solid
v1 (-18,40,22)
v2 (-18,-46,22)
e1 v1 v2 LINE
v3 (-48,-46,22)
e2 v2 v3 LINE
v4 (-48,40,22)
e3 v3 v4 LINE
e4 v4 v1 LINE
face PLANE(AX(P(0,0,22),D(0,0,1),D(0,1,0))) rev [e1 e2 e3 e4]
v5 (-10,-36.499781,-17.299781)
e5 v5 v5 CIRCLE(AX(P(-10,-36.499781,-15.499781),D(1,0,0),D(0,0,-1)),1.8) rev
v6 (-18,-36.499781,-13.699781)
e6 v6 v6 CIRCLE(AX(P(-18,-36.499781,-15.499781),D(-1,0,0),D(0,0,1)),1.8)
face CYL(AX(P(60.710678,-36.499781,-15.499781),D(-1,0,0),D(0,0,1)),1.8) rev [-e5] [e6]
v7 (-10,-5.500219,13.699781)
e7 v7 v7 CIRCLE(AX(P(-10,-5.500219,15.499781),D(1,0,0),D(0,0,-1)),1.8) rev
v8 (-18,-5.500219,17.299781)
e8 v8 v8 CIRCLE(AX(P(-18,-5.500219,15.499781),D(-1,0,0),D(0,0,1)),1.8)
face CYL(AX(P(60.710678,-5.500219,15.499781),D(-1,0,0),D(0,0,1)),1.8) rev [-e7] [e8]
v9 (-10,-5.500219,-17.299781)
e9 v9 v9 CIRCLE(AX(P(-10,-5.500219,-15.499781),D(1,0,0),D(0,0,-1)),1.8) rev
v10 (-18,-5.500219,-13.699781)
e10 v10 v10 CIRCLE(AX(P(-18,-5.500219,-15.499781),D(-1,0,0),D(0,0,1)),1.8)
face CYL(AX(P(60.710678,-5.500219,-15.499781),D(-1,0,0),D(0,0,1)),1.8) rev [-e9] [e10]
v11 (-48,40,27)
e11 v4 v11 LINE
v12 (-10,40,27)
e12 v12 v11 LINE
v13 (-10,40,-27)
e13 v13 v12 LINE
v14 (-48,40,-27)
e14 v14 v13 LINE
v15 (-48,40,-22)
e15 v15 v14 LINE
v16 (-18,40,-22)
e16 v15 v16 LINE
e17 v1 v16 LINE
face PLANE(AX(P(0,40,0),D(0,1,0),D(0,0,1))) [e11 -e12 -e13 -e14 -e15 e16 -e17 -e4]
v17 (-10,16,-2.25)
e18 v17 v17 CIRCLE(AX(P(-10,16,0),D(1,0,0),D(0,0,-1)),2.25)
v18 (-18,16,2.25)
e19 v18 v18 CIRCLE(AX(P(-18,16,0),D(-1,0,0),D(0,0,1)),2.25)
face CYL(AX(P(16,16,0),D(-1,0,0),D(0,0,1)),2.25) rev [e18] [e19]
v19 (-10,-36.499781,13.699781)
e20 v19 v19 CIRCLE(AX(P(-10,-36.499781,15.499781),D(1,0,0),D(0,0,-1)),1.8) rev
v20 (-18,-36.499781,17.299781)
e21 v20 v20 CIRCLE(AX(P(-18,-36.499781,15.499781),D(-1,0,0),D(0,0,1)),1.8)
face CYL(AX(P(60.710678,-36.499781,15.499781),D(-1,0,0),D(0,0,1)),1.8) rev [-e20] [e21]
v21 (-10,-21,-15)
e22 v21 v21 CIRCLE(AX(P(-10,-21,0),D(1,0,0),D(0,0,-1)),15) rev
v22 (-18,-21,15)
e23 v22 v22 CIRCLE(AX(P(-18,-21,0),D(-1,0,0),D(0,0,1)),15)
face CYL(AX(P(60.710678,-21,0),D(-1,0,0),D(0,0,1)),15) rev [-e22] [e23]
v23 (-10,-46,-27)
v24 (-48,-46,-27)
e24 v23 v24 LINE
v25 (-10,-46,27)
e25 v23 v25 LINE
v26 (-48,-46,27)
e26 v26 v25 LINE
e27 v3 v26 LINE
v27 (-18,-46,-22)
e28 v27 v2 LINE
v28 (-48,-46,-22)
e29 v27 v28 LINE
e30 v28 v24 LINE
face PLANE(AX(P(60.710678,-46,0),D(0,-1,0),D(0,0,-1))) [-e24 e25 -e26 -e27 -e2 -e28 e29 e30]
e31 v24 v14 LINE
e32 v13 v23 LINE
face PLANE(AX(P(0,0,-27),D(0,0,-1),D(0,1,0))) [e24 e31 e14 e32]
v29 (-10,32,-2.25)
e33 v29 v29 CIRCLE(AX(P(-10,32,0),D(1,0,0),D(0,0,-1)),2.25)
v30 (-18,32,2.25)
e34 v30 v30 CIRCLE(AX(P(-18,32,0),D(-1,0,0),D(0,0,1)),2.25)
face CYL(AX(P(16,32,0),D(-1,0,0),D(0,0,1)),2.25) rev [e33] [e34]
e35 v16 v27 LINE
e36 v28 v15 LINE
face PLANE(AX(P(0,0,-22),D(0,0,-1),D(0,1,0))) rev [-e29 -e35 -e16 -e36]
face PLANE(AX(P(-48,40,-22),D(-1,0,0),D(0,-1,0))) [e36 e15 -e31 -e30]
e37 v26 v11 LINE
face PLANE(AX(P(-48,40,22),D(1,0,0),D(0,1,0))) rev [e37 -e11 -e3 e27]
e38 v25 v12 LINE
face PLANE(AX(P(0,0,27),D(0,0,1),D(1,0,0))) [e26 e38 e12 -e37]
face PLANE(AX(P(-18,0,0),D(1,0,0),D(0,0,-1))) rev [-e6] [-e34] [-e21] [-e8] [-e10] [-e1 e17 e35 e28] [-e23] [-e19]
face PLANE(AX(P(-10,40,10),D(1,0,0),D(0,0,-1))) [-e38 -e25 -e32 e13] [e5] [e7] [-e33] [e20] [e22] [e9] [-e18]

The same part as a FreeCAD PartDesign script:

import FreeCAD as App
import Part
import Sketcher

doc = App.newDocument("Part")
body = doc.addObject("PartDesign::Body", "Body")

sketch1 = doc.addObject("Sketcher::SketchObject", "Sketch")
body.addObject(sketch1)
sketch1.AttachmentSupport = (doc.XZ_Plane, [""])
sketch1.MapMode = "FlatFace"
sketch1.addGeometry([
    Part.LineSegment(App.Vector(-14, -14, 0), App.Vector(-14, 14, 0)),
    Part.LineSegment(App.Vector(-14, 14, 0), App.Vector(14, 14, 0)),
    Part.LineSegment(App.Vector(14, 14, 0), App.Vector(14, -14, 0)),
    Part.LineSegment(App.Vector(14, -14, 0), App.Vector(-14, -14, 0)),
    Part.LineSegment(App.Vector(10, 10, 0), App.Vector(-10, 10, 0)),
    Part.LineSegment(App.Vector(-10, 10, 0), App.Vector(-10, -10, 0)),
    Part.LineSegment(App.Vector(-10, -10, 0), App.Vector(10, -10, 0)),
    Part.LineSegment(App.Vector(10, -10, 0), App.Vector(10, 10, 0)),
], False)
sketch1.addConstraint([
    Sketcher.Constraint("Coincident", 0, 2, 1, 1),
    Sketcher.Constraint("Coincident", 1, 2, 2, 1),
    Sketcher.Constraint("Coincident", 2, 2, 3, 1),
    Sketcher.Constraint("Coincident", 3, 2, 0, 1),
    Sketcher.Constraint("Coincident", 4, 2, 5, 1),
    Sketcher.Constraint("Coincident", 5, 2, 6, 1),
    Sketcher.Constraint("Coincident", 6, 2, 7, 1),
    Sketcher.Constraint("Coincident", 7, 2, 4, 1),
    Sketcher.Constraint("Vertical", 0),
    Sketcher.Constraint("Horizontal", 1),
    Sketcher.Constraint("Vertical", 2),
    Sketcher.Constraint("Horizontal", 3),
    Sketcher.Constraint("Horizontal", 4),
    Sketcher.Constraint("Vertical", 5),
    Sketcher.Constraint("Horizontal", 6),
    Sketcher.Constraint("Vertical", 7),
    Sketcher.Constraint("Symmetric", 0, 2, 2, 2, -1, 1),
    Sketcher.Constraint("Symmetric", 4, 2, 6, 2, -1, 1),
    Sketcher.Constraint("Equal", 3, 0),
    Sketcher.Constraint("Equal", 6, 5),
    Sketcher.Constraint("DistanceX", 1, 1, 1, 2, 28.0),
    Sketcher.Constraint("DistanceX", 4, 2, 4, 1, 20.0),
])
pad1 = doc.addObject("PartDesign::Pad", "Pad")
body.addObject(pad1)
pad1.Profile = sketch1
pad1.Length = 40
pad1.Reversed = True

sketch2 = doc.addObject("Sketcher::SketchObject", "Sketch001")
body.addObject(sketch2)
sketch2.AttachmentSupport = (doc.YZ_Plane, [""])
sketch2.MapMode = "FlatFace"
sketch2.AttachmentOffset = App.Placement(App.Vector(0, 0, -14), App.Rotation())
sketch2.addGeometry([
    Part.Circle(App.Vector(32, 0, 0), App.Vector(0, 0, 1), 2.2),
    Part.Circle(App.Vector(16, 0, 0), App.Vector(0, 0, 1), 2.2),
], False)
sketch2.addConstraint([
    Sketcher.Constraint("Equal", 0, 1),
    Sketcher.Constraint("PointOnObject", 0, 3, -1),
    Sketcher.Constraint("PointOnObject", 1, 3, -1),
    Sketcher.Constraint("Diameter", 0, 4.5),
    Sketcher.Constraint("DistanceX", -1, 1, 0, 3, 32.0),
    Sketcher.Constraint("DistanceX", -1, 1, 1, 3, 16.0),
])
pocket1 = doc.addObject("PartDesign::Pocket", "Pocket")
body.addObject(pocket1)
pocket1.Profile = sketch2
pocket1.Length = 30
pocket1.Reversed = True

sketch3 = doc.addObject("Sketcher::SketchObject", "Sketch002")
body.addObject(sketch3)
sketch3.AttachmentSupport = (doc.YZ_Plane, [""])
sketch3.MapMode = "FlatFace"
sketch3.AttachmentOffset = App.Placement(App.Vector(0, 0, -14), App.Rotation())
sketch3.addGeometry([
    Part.LineSegment(App.Vector(4, -25, 0), App.Vector(-46, -25, 0)),
    Part.LineSegment(App.Vector(-46, -25, 0), App.Vector(-46, 25, 0)),
    Part.LineSegment(App.Vector(-46, 25, 0), App.Vector(4, 25, 0)),
    Part.LineSegment(App.Vector(4, 25, 0), App.Vector(4, -25, 0)),
    Part.Circle(App.Vector(-36.5, -15.5, 0), App.Vector(0, 0, 1), 1.8),
    Part.Circle(App.Vector(-36.5, 15.5, 0), App.Vector(0, 0, 1), 1.8),
    Part.Circle(App.Vector(-21, 0, 0), App.Vector(0, 0, 1), 15),
    Part.Circle(App.Vector(-5.5, -15.5, 0), App.Vector(0, 0, 1), 1.8),
    Part.Circle(App.Vector(-5.5, 15.5, 0), App.Vector(0, 0, 1), 1.8),
], False)
sketch3.addConstraint([
    Sketcher.Constraint("Coincident", 0, 2, 1, 1),
    Sketcher.Constraint("Coincident", 1, 2, 2, 1),
    Sketcher.Constraint("Coincident", 2, 2, 3, 1),
    Sketcher.Constraint("Coincident", 3, 2, 0, 1),
    Sketcher.Constraint("Horizontal", 0),
    Sketcher.Constraint("Vertical", 1),
    Sketcher.Constraint("Horizontal", 2),
    Sketcher.Constraint("Vertical", 3),
    Sketcher.Constraint("Equal", 4, 5),
    Sketcher.Constraint("Equal", 5, 7),
    Sketcher.Constraint("Equal", 7, 8),
    Sketcher.Constraint("Symmetric", 4, 3, 5, 3, -1),
    Sketcher.Constraint("Symmetric", 7, 3, 8, 3, -1),
    Sketcher.Constraint("PointOnObject", 6, 3, -1),
    Sketcher.Constraint("Horizontal", 4, 3, 7, 3),
    Sketcher.Constraint("Equal", 2, 1),
    Sketcher.Constraint("Diameter", 6, 30.0),
    Sketcher.Constraint("Diameter", 4, 3.6),
    Sketcher.Constraint("DistanceX", 0, 2, 0, 1, 50.0),
    Sketcher.Constraint("DistanceX", 6, 3, -1, 1, 21.0),
    Sketcher.Constraint("DistanceX", 0, 2, -1, 1, 46.0),
    Sketcher.Constraint("DistanceY", 0, 2, -1, 1, 25.0),
    Sketcher.Constraint("DistanceX", 4, 3, -1, 1, 36.499781),
    Sketcher.Constraint("DistanceY", 4, 3, -1, 1, 15.499781),
    Sketcher.Constraint("DistanceX", 7, 3, -1, 1, 5.500219),
])
pad2 = doc.addObject("PartDesign::Pad", "Pad001")
body.addObject(pad2)
pad2.Profile = sketch3
pad2.Length = 4

sketch4 = doc.addObject("Sketcher::SketchObject", "Sketch003")
body.addObject(sketch4)
sketch4.AttachmentSupport = (doc.XZ_Plane, [""])
sketch4.MapMode = "FlatFace"
sketch4.addGeometry([
    Part.LineSegment(App.Vector(-10, 14, 0), App.Vector(-10, -14, 0)),
    Part.LineSegment(App.Vector(-10, -14, 0), App.Vector(14, -14, 0)),
    Part.LineSegment(App.Vector(14, -14, 0), App.Vector(14, 14, 0)),
    Part.LineSegment(App.Vector(14, 14, 0), App.Vector(-10, 14, 0)),
], False)
sketch4.addConstraint([
    Sketcher.Constraint("Coincident", 0, 2, 1, 1),
    Sketcher.Constraint("Coincident", 1, 2, 2, 1),
    Sketcher.Constraint("Coincident", 2, 2, 3, 1),
    Sketcher.Constraint("Coincident", 3, 2, 0, 1),
    Sketcher.Constraint("Vertical", 0),
    Sketcher.Constraint("Horizontal", 1),
    Sketcher.Constraint("Vertical", 2),
    Sketcher.Constraint("Horizontal", 3),
    Sketcher.Constraint("DistanceX", 1, 1, 1, 2, 24.0),
    Sketcher.Constraint("DistanceY", 0, 2, 0, 1, 28.0),
    Sketcher.Constraint("DistanceX", 0, 2, -1, 1, 10.0),
    Sketcher.Constraint("DistanceY", 0, 2, -1, 1, 14.0),
])
pocket2 = doc.addObject("PartDesign::Pocket", "Pocket001")
body.addObject(pocket2)
pocket2.Profile = sketch4
pocket2.Length = 40

sketch5 = doc.addObject("Sketcher::SketchObject", "Sketch004")
body.addObject(sketch5)
sketch5.AttachmentSupport = (doc.YZ_Plane, [""])
sketch5.MapMode = "FlatFace"
sketch5.AttachmentOffset = App.Placement(App.Vector(0, 0, -14), App.Rotation())
sketch5.addGeometry([
    Part.LineSegment(App.Vector(40, -14, 0), App.Vector(4, -14, 0)),
    Part.LineSegment(App.Vector(4, -14, 0), App.Vector(4, -10, 0)),
    Part.LineSegment(App.Vector(4, -10, 0), App.Vector(40, -10, 0)),
    Part.LineSegment(App.Vector(40, -10, 0), App.Vector(40, -14, 0)),
    Part.LineSegment(App.Vector(40, 10, 0), App.Vector(4, 10, 0)),
    Part.LineSegment(App.Vector(4, 10, 0), App.Vector(4, 14, 0)),
    Part.LineSegment(App.Vector(4, 14, 0), App.Vector(40, 14, 0)),
    Part.LineSegment(App.Vector(40, 14, 0), App.Vector(40, 10, 0)),
], False)
sketch5.addConstraint([
    Sketcher.Constraint("Coincident", 0, 2, 1, 1),
    Sketcher.Constraint("Coincident", 1, 2, 2, 1),
    Sketcher.Constraint("Coincident", 2, 2, 3, 1),
    Sketcher.Constraint("Coincident", 3, 2, 0, 1),
    Sketcher.Constraint("Coincident", 4, 2, 5, 1),
    Sketcher.Constraint("Coincident", 5, 2, 6, 1),
    Sketcher.Constraint("Coincident", 6, 2, 7, 1),
    Sketcher.Constraint("Coincident", 7, 2, 4, 1),
    Sketcher.Constraint("Horizontal", 0),
    Sketcher.Constraint("Vertical", 1),
    Sketcher.Constraint("Horizontal", 2),
    Sketcher.Constraint("Vertical", 3),
    Sketcher.Constraint("Horizontal", 4),
    Sketcher.Constraint("Vertical", 5),
    Sketcher.Constraint("Horizontal", 6),
    Sketcher.Constraint("Vertical", 7),
    Sketcher.Constraint("Symmetric", 1, 2, 4, 2, -1),
    Sketcher.Constraint("Symmetric", 3, 2, 6, 2, -1),
    Sketcher.Constraint("DistanceX", 0, 2, 0, 1, 36.0),
    Sketcher.Constraint("DistanceY", 1, 1, 1, 2, 4.0),
    Sketcher.Constraint("DistanceX", -1, 1, 0, 2, 4.0),
    Sketcher.Constraint("DistanceY", 0, 2, -1, 1, 14.0),
])
pocket3 = doc.addObject("PartDesign::Pocket", "Pocket002")
body.addObject(pocket3)
pocket3.Profile = sketch5
pocket3.Length = 4
pocket3.Reversed = True

sketch6 = doc.addObject("Sketcher::SketchObject", "Sketch005")
body.addObject(sketch6)
sketch6.AttachmentSupport = (doc.YZ_Plane, [""])
sketch6.MapMode = "FlatFace"
sketch6.AttachmentOffset = App.Placement(App.Vector(0, 0, -14), App.Rotation())
sketch6.addGeometry([
    Part.LineSegment(App.Vector(40, -25, 0), App.Vector(4, -25, 0)),
    Part.LineSegment(App.Vector(4, -25, 0), App.Vector(4, -10, 0)),
    Part.LineSegment(App.Vector(4, -10, 0), App.Vector(40, -10, 0)),
    Part.LineSegment(App.Vector(40, -10, 0), App.Vector(40, -25, 0)),
    Part.LineSegment(App.Vector(40, 10, 0), App.Vector(4, 10, 0)),
    Part.LineSegment(App.Vector(4, 10, 0), App.Vector(4, 25, 0)),
    Part.LineSegment(App.Vector(4, 25, 0), App.Vector(40, 25, 0)),
    Part.LineSegment(App.Vector(40, 25, 0), App.Vector(40, 10, 0)),
], False)
sketch6.addConstraint([
    Sketcher.Constraint("Coincident", 0, 2, 1, 1),
    Sketcher.Constraint("Coincident", 1, 2, 2, 1),
    Sketcher.Constraint("Coincident", 2, 2, 3, 1),
    Sketcher.Constraint("Coincident", 3, 2, 0, 1),
    Sketcher.Constraint("Coincident", 4, 2, 5, 1),
    Sketcher.Constraint("Coincident", 5, 2, 6, 1),
    Sketcher.Constraint("Coincident", 6, 2, 7, 1),
    Sketcher.Constraint("Coincident", 7, 2, 4, 1),
    Sketcher.Constraint("Horizontal", 0),
    Sketcher.Constraint("Vertical", 1),
    Sketcher.Constraint("Horizontal", 2),
    Sketcher.Constraint("Vertical", 3),
    Sketcher.Constraint("Horizontal", 4),
    Sketcher.Constraint("Vertical", 5),
    Sketcher.Constraint("Horizontal", 6),
    Sketcher.Constraint("Vertical", 7),
    Sketcher.Constraint("Symmetric", 1, 2, 4, 2, -1),
    Sketcher.Constraint("Symmetric", 3, 2, 6, 2, -1),
    Sketcher.Constraint("DistanceX", 0, 2, 0, 1, 36.0),
    Sketcher.Constraint("DistanceY", 1, 1, 1, 2, 15.0),
    Sketcher.Constraint("DistanceX", -1, 1, 0, 2, 4.0),
    Sketcher.Constraint("DistanceY", 0, 2, -1, 1, 25.0),
])
pad3 = doc.addObject("PartDesign::Pad", "Pad002")
body.addObject(pad3)
pad3.Profile = sketch6
pad3.Length = 4

sketch7 = doc.addObject("Sketcher::SketchObject", "Sketch006")
body.addObject(sketch7)
sketch7.AttachmentSupport = (doc.YZ_Plane, [""])
sketch7.MapMode = "FlatFace"
sketch7.AttachmentOffset = App.Placement(App.Vector(0, 0, -18), App.Rotation())
sketch7.addGeometry([
    Part.LineSegment(App.Vector(40, -25, 0), App.Vector(-46, -25, 0)),
    Part.LineSegment(App.Vector(-46, -25, 0), App.Vector(-46, 25, 0)),
    Part.LineSegment(App.Vector(-46, 25, 0), App.Vector(40, 25, 0)),
    Part.LineSegment(App.Vector(40, 25, 0), App.Vector(40, -25, 0)),
    Part.Circle(App.Vector(-36.5, -15.5, 0), App.Vector(0, 0, 1), 1.8),
    Part.Circle(App.Vector(-5.5, -15.5, 0), App.Vector(0, 0, 1), 1.8),
    Part.Circle(App.Vector(-21, 0, 0), App.Vector(0, 0, 1), 15),
    Part.Circle(App.Vector(-36.5, 15.5, 0), App.Vector(0, 0, 1), 1.8),
    Part.Circle(App.Vector(-5.5, 15.5, 0), App.Vector(0, 0, 1), 1.8),
    Part.Circle(App.Vector(16, 0, 0), App.Vector(0, 0, 1), 2.2),
    Part.Circle(App.Vector(32, 0, 0), App.Vector(0, 0, 1), 2.2),
], False)
sketch7.addConstraint([
    Sketcher.Constraint("Coincident", 0, 2, 1, 1),
    Sketcher.Constraint("Coincident", 1, 2, 2, 1),
    Sketcher.Constraint("Coincident", 2, 2, 3, 1),
    Sketcher.Constraint("Coincident", 3, 2, 0, 1),
    Sketcher.Constraint("Horizontal", 0),
    Sketcher.Constraint("Vertical", 1),
    Sketcher.Constraint("Horizontal", 2),
    Sketcher.Constraint("Vertical", 3),
    Sketcher.Constraint("Equal", 4, 5),
    Sketcher.Constraint("Equal", 5, 7),
    Sketcher.Constraint("Equal", 7, 8),
    Sketcher.Constraint("Equal", 9, 10),
    Sketcher.Constraint("Symmetric", 4, 3, 7, 3, -1),
    Sketcher.Constraint("Symmetric", 5, 3, 8, 3, -1),
    Sketcher.Constraint("PointOnObject", 6, 3, -1),
    Sketcher.Constraint("PointOnObject", 9, 3, -1),
    Sketcher.Constraint("PointOnObject", 10, 3, -1),
    Sketcher.Constraint("Horizontal", 4, 3, 5, 3),
    Sketcher.Constraint("Diameter", 6, 30.0),
    Sketcher.Constraint("Diameter", 4, 3.6),
    Sketcher.Constraint("Diameter", 9, 4.5),
    Sketcher.Constraint("DistanceX", 0, 2, 0, 1, 86.0),
    Sketcher.Constraint("DistanceY", 1, 1, 1, 2, 50.0),
    Sketcher.Constraint("DistanceX", 6, 3, -1, 1, 21.0),
    Sketcher.Constraint("DistanceX", -1, 1, 9, 3, 16.0),
    Sketcher.Constraint("DistanceX", -1, 1, 10, 3, 32.0),
    Sketcher.Constraint("DistanceX", 0, 2, -1, 1, 46.0),
    Sketcher.Constraint("DistanceY", 0, 2, -1, 1, 25.0),
    Sketcher.Constraint("DistanceX", 4, 3, -1, 1, 36.499781),
    Sketcher.Constraint("DistanceY", 4, 3, -1, 1, 15.499781),
    Sketcher.Constraint("DistanceX", 5, 3, -1, 1, 5.500219),
])
pad4 = doc.addObject("PartDesign::Pad", "Pad003")
body.addObject(pad4)
pad4.Profile = sketch7
pad4.Length = 4

sketch8 = doc.addObject("Sketcher::SketchObject", "Sketch007")
body.addObject(sketch8)
sketch8.AttachmentSupport = (doc.XY_Plane, [""])
sketch8.MapMode = "FlatFace"
sketch8.AttachmentOffset = App.Placement(App.Vector(0, 0, 25), App.Rotation())
sketch8.addGeometry([
    Part.LineSegment(App.Vector(-18, 40, 0), App.Vector(-18, -46, 0)),
    Part.LineSegment(App.Vector(-18, -46, 0), App.Vector(-10, -46, 0)),
    Part.LineSegment(App.Vector(-10, -46, 0), App.Vector(-10, 40, 0)),
    Part.LineSegment(App.Vector(-10, 40, 0), App.Vector(-18, 40, 0)),
], False)
sketch8.addConstraint([
    Sketcher.Constraint("Coincident", 0, 2, 1, 1),
    Sketcher.Constraint("Coincident", 1, 2, 2, 1),
    Sketcher.Constraint("Coincident", 2, 2, 3, 1),
    Sketcher.Constraint("Coincident", 3, 2, 0, 1),
    Sketcher.Constraint("Vertical", 0),
    Sketcher.Constraint("Horizontal", 1),
    Sketcher.Constraint("Vertical", 2),
    Sketcher.Constraint("Horizontal", 3),
    Sketcher.Constraint("DistanceX", 1, 1, 1, 2, 8.0),
    Sketcher.Constraint("DistanceY", 0, 2, 0, 1, 86.0),
    Sketcher.Constraint("DistanceX", 0, 2, -1, 1, 18.0),
    Sketcher.Constraint("DistanceY", 0, 2, -1, 1, 46.0),
])
pad5 = doc.addObject("PartDesign::Pad", "Pad004")
body.addObject(pad5)
pad5.Profile = sketch8
pad5.Length = 2

sketch9 = doc.addObject("Sketcher::SketchObject", "Sketch008")
body.addObject(sketch9)
sketch9.AttachmentSupport = (doc.XY_Plane, [""])
sketch9.MapMode = "FlatFace"
sketch9.AttachmentOffset = App.Placement(App.Vector(0, 0, -25), App.Rotation())
sketch9.addGeometry([
    Part.LineSegment(App.Vector(-10, 40, 0), App.Vector(-10, -46, 0)),
    Part.LineSegment(App.Vector(-10, -46, 0), App.Vector(-18, -46, 0)),
    Part.LineSegment(App.Vector(-18, -46, 0), App.Vector(-18, 40, 0)),
    Part.LineSegment(App.Vector(-18, 40, 0), App.Vector(-10, 40, 0)),
], False)
sketch9.addConstraint([
    Sketcher.Constraint("Coincident", 0, 2, 1, 1),
    Sketcher.Constraint("Coincident", 1, 2, 2, 1),
    Sketcher.Constraint("Coincident", 2, 2, 3, 1),
    Sketcher.Constraint("Coincident", 3, 2, 0, 1),
    Sketcher.Constraint("Vertical", 0),
    Sketcher.Constraint("Horizontal", 1),
    Sketcher.Constraint("Vertical", 2),
    Sketcher.Constraint("Horizontal", 3),
    Sketcher.Constraint("DistanceX", 1, 2, 1, 1, 8.0),
    Sketcher.Constraint("DistanceY", 0, 2, 0, 1, 86.0),
    Sketcher.Constraint("DistanceX", 0, 2, -1, 1, 10.0),
    Sketcher.Constraint("DistanceY", 0, 2, -1, 1, 46.0),
])
pad6 = doc.addObject("PartDesign::Pad", "Pad005")
body.addObject(pad6)
pad6.Profile = sketch9
pad6.Length = 2
pad6.Reversed = True

sketch10 = doc.addObject("Sketcher::SketchObject", "Sketch009")
body.addObject(sketch10)
sketch10.AttachmentSupport = (doc.XY_Plane, [""])
sketch10.MapMode = "FlatFace"
sketch10.AttachmentOffset = App.Placement(App.Vector(0, 0, -27), App.Rotation())
sketch10.addGeometry([
    Part.LineSegment(App.Vector(-18, 40, 0), App.Vector(-18, -46, 0)),
    Part.LineSegment(App.Vector(-18, -46, 0), App.Vector(-48, -46, 0)),
    Part.LineSegment(App.Vector(-48, -46, 0), App.Vector(-48, 40, 0)),
    Part.LineSegment(App.Vector(-48, 40, 0), App.Vector(-18, 40, 0)),
], False)
sketch10.addConstraint([
    Sketcher.Constraint("Coincident", 0, 2, 1, 1),
    Sketcher.Constraint("Coincident", 1, 2, 2, 1),
    Sketcher.Constraint("Coincident", 2, 2, 3, 1),
    Sketcher.Constraint("Coincident", 3, 2, 0, 1),
    Sketcher.Constraint("Vertical", 0),
    Sketcher.Constraint("Horizontal", 1),
    Sketcher.Constraint("Vertical", 2),
    Sketcher.Constraint("Horizontal", 3),
    Sketcher.Constraint("DistanceX", 1, 2, 1, 1, 30.0),
    Sketcher.Constraint("DistanceY", 0, 2, 0, 1, 86.0),
    Sketcher.Constraint("DistanceX", 0, 2, -1, 1, 18.0),
    Sketcher.Constraint("DistanceY", 0, 2, -1, 1, 46.0),
])
pad7 = doc.addObject("PartDesign::Pad", "Pad006")
body.addObject(pad7)
pad7.Profile = sketch10
pad7.Length = 5
doc.recompute()

mirrored = doc.addObject("PartDesign::Mirrored", "Mirrored")
body.addObject(mirrored)
mirrored.Originals = [pad7]
mirrored.MirrorPlane = (doc.XY_Plane, [""])
body.Tip = mirrored

doc.recompute()
